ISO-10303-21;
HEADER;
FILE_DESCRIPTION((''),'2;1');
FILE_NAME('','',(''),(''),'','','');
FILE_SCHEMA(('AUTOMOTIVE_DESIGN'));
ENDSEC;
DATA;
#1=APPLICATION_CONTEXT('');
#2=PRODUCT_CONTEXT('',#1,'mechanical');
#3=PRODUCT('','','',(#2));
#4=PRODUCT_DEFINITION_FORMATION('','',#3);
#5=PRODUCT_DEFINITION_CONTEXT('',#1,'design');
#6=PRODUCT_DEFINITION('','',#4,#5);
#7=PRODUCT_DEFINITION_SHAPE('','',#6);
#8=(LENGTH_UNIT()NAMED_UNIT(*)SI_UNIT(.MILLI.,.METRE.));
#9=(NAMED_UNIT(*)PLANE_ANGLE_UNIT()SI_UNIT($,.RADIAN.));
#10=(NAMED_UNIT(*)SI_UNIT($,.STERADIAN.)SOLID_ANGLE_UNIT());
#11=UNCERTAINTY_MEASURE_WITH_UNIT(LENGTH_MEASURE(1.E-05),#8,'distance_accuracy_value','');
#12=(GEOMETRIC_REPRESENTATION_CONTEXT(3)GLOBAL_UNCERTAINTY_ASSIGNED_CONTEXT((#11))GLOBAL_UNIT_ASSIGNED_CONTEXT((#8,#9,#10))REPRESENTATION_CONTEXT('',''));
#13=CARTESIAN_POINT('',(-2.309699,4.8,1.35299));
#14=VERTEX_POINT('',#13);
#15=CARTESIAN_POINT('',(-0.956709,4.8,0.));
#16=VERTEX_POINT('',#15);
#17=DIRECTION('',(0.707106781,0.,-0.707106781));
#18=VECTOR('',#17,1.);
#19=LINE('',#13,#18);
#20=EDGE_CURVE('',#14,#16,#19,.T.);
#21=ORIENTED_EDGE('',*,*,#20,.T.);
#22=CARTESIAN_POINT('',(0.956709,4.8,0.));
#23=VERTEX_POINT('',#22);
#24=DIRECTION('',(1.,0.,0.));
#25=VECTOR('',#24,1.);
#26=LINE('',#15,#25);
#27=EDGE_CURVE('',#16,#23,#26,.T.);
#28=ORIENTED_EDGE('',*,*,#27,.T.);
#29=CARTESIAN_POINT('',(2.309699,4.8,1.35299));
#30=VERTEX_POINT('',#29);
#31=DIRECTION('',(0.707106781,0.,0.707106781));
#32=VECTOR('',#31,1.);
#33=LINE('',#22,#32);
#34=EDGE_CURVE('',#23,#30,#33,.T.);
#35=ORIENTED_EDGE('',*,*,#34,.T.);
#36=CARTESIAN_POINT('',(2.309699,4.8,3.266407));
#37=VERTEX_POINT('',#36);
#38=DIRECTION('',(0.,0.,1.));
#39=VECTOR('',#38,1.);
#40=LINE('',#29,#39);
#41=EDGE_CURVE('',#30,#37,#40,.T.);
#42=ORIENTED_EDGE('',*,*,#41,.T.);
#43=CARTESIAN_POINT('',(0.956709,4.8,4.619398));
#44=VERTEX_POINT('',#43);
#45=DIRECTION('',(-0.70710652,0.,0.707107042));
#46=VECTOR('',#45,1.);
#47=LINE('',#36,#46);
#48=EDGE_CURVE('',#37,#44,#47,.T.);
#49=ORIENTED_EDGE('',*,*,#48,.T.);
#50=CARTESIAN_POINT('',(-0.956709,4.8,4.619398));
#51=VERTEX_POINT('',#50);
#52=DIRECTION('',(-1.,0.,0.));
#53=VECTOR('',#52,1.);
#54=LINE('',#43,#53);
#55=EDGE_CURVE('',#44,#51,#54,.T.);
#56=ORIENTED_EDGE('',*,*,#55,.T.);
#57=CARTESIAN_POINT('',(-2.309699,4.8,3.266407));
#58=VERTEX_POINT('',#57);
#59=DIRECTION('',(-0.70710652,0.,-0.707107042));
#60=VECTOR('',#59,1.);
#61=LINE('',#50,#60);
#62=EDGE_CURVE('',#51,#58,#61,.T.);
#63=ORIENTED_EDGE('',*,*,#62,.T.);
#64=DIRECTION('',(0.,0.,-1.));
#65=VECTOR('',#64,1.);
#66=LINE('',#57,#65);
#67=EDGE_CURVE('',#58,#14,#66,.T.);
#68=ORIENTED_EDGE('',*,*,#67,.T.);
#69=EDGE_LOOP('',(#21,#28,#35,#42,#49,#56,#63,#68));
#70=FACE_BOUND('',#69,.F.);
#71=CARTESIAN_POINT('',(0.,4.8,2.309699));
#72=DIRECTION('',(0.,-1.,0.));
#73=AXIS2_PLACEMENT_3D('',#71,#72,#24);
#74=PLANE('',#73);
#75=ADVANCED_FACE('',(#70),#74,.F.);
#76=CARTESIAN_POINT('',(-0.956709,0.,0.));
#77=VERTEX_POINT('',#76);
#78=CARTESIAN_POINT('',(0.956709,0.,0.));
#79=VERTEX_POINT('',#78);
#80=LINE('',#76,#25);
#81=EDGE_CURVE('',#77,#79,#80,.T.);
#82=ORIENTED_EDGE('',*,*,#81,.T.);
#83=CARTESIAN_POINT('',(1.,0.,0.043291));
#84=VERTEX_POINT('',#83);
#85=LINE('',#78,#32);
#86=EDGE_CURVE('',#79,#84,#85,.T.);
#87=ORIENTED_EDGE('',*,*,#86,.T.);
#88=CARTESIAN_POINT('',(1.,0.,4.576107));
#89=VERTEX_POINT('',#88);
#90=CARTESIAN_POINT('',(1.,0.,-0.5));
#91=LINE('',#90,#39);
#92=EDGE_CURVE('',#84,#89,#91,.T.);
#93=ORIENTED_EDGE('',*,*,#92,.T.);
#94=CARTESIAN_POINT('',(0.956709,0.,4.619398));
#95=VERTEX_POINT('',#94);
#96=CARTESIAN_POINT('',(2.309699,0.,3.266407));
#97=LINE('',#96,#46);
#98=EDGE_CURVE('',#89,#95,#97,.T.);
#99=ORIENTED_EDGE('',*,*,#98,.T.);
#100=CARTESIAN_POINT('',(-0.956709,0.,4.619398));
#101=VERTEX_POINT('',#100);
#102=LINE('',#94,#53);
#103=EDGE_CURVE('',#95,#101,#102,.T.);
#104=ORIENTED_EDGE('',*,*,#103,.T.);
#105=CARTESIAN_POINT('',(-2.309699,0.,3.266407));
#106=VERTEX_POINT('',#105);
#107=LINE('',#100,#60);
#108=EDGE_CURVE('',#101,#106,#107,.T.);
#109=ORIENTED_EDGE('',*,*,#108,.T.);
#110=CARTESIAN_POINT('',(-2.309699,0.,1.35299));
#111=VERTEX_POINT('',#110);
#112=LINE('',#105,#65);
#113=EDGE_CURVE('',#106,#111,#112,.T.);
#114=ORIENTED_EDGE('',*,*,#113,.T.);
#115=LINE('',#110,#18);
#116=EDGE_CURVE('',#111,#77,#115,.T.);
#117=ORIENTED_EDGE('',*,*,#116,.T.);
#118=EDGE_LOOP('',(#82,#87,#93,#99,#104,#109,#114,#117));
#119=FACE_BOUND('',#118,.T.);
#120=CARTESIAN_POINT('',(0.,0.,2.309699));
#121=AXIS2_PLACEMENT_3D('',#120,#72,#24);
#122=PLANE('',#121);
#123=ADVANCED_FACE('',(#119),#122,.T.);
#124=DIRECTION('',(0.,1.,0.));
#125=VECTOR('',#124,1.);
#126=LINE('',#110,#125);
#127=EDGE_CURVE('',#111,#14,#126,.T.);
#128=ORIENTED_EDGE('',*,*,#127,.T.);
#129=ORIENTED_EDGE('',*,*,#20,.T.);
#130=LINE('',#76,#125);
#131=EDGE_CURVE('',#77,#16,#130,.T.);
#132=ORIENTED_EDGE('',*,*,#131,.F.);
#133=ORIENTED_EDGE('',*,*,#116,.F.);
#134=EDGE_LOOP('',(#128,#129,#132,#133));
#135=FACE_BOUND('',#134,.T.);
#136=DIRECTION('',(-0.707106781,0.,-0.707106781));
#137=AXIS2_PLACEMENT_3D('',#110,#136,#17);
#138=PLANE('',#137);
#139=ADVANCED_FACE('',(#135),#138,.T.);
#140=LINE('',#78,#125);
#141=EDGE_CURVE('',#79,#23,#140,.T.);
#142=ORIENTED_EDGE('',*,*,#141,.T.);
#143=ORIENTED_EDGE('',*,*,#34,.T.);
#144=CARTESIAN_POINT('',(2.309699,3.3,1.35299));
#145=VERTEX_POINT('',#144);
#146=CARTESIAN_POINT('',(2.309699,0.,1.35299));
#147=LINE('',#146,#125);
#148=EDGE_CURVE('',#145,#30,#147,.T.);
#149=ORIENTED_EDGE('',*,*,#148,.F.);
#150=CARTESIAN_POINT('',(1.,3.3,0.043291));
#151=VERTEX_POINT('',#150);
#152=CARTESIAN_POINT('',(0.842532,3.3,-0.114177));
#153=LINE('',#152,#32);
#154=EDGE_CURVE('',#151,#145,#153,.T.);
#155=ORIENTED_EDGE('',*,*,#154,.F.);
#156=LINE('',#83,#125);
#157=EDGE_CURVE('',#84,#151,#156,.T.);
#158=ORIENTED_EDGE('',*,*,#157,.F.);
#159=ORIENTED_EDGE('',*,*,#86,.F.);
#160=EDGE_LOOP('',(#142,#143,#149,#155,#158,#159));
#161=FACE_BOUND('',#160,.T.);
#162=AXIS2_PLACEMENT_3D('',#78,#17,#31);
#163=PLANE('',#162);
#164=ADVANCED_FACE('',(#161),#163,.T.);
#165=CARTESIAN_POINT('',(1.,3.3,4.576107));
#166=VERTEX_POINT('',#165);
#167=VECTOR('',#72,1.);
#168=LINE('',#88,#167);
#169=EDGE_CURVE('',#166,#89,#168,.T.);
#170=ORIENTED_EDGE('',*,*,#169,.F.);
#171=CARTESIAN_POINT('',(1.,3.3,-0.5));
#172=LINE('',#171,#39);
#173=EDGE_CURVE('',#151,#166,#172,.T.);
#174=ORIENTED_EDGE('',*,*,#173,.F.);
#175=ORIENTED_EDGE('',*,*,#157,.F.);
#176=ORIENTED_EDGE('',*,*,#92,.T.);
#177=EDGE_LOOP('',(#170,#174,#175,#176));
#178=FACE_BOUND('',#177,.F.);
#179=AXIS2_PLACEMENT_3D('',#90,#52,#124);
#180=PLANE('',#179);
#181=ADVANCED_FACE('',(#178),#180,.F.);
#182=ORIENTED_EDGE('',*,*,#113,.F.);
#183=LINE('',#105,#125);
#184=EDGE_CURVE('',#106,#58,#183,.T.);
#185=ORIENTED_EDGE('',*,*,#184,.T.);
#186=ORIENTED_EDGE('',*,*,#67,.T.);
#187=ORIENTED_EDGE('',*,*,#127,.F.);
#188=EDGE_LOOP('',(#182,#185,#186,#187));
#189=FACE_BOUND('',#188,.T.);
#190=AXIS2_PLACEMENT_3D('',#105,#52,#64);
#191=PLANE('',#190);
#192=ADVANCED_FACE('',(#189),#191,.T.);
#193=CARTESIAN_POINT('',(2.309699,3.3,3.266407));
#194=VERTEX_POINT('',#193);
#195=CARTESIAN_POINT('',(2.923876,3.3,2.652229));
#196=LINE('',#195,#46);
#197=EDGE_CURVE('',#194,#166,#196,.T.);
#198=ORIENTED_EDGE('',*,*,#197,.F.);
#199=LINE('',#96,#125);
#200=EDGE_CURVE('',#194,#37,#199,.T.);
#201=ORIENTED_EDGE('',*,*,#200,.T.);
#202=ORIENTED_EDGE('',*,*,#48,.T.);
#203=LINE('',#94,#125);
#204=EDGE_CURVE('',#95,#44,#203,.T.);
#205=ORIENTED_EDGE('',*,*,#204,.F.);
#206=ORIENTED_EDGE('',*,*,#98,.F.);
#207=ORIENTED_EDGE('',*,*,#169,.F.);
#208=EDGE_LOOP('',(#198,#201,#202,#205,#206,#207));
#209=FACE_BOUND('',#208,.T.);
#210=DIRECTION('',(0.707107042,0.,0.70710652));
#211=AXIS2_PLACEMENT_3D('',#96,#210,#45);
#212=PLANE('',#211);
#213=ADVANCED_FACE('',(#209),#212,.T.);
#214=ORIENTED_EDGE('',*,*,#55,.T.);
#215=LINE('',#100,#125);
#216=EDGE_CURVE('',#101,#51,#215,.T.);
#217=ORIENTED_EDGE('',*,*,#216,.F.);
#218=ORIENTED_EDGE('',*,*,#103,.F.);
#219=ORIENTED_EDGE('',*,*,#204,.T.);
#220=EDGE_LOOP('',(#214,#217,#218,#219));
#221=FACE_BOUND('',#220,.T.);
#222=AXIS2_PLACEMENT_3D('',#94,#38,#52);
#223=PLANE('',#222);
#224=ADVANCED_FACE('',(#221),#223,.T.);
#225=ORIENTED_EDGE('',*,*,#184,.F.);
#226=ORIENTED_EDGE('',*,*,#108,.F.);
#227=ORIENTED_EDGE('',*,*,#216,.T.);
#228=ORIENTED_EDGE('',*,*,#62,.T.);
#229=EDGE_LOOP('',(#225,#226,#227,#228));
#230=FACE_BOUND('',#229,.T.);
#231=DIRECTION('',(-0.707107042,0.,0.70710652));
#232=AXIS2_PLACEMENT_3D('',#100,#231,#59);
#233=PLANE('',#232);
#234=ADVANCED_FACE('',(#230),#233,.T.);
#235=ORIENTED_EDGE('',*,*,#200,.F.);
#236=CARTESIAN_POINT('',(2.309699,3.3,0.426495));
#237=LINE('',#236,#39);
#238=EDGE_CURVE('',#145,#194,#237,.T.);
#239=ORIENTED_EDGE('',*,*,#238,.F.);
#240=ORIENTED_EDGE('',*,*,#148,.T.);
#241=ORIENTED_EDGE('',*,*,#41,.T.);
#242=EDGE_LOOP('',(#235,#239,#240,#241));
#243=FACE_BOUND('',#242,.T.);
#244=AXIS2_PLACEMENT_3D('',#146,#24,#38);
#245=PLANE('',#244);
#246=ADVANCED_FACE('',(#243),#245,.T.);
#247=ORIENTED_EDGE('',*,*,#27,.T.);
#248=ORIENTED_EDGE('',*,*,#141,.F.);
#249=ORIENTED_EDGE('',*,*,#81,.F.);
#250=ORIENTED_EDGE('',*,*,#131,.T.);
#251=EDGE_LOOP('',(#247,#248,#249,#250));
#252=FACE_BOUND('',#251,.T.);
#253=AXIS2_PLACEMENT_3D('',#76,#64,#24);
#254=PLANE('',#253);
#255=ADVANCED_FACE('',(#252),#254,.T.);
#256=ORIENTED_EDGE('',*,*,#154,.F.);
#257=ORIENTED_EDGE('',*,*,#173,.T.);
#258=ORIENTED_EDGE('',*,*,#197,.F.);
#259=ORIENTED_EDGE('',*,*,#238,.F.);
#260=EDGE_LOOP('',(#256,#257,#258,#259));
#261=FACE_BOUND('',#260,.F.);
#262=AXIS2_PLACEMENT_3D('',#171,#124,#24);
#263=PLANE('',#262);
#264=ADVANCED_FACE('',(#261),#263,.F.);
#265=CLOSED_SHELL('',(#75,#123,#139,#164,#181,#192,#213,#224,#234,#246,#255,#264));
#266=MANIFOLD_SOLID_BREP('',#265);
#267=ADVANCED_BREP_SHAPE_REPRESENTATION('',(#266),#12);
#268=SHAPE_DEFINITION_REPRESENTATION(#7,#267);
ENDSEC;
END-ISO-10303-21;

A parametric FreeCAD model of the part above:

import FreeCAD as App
import Part
import Sketcher
from FreeCAD import Vector


def add_polygon(sketch, points):
    """Adds a closed chain of lines whose ends are joined by coincident constraints."""
    first, n = sketch.GeometryCount, len(points)
    for a, b in zip(points, points[1:] + points[:1]):
        sketch.addGeometry(Part.LineSegment(App.Vector(*a, 0), App.Vector(*b, 0)), False)
    for i in range(n):
        sketch.addConstraint(Sketcher.Constraint("Coincident", first + i, 2, first + (i + 1) % n, 1))

doc = App.newDocument("Part")
params = doc.addObject("Spreadsheet::Sheet", "Params")
for row, (alias, value) in enumerate([
    ("sketch1_width", "2 mm"),
    ("sketch1_height", "3.3 mm"),
    ("pad1_length", "6 mm"),
    ("pad2_length", "4.8 mm"),
], start=1):
    params.set(f"A{row}", alias)
    params.set(f"B{row}", "=" + value)
    params.setAlias(f"B{row}", alias)

body = doc.addObject("PartDesign::Body", "Body")

# Sketch on XY plane
sketch1 = body.newObject("Sketcher::SketchObject", "Sketch")
sketch1.AttachmentSupport = (doc.getObject("XY_Plane"), [""])
sketch1.MapMode = "FlatFace"
sketch1.AttachmentOffset = App.Placement(Vector(0, 0, -0.5), App.Rotation())
add_polygon(sketch1, [(1, 3.3), (1, 0), (3, 0), (3, 3.3)])  # lines 0-3
sketch1.addConstraint(Sketcher.Constraint("Vertical", 0))
sketch1.addConstraint(Sketcher.Constraint("Horizontal", 1))
sketch1.addConstraint(Sketcher.Constraint("Vertical", 2))
sketch1.addConstraint(Sketcher.Constraint("Horizontal", 3))
sketch1.addConstraint(Sketcher.Constraint("PointOnObject", 0, 2, -1))
sketch1.addConstraint(Sketcher.Constraint("DistanceX", 1, 1, 1, 2, 2.0))
sketch1.addConstraint(Sketcher.Constraint("DistanceY", 0, 2, 0, 1, 3.3))
sketch1.addConstraint(Sketcher.Constraint("DistanceX", -1, 1, 0, 2, 1.0))
sketch1.setExpression("Constraints[9]", "Params.sketch1_width")
sketch1.setExpression("Constraints[10]", "Params.sketch1_height")
pad1 = body.newObject("PartDesign::Pad", "Pad")
pad1.Profile = sketch1
pad1.setExpression("Length", "Params.pad1_length")
body2 = doc.addObject("PartDesign::Body", "Body001")

# Sketch on XZ plane
sketch2 = body2.newObject("Sketcher::SketchObject", "Sketch001")
sketch2.AttachmentSupport = (doc.getObject("XZ_Plane001"), [""])
sketch2.MapMode = "FlatFace"
add_polygon(sketch2, [(2.3, 1.4), (2.3, 3.3), (1, 4.6), (-1, 4.6), (-2.3, 3.3), (-2.3, 1.4), (-1, 0), (1, 0)])  # lines 0-7
sketch2.addConstraint(Sketcher.Constraint("Vertical", 0))
sketch2.addConstraint(Sketcher.Constraint("Horizontal", 2))
sketch2.addConstraint(Sketcher.Constraint("Vertical", 4))
sketch2.addConstraint(Sketcher.Constraint("Horizontal", 6))
sketch2.addConstraint(Sketcher.Constraint("Symmetric", 5, 2, 6, 2, -1, 1))
sketch2.addConstraint(Sketcher.Constraint("Symmetric", 0, 2, 3, 2, -2))
sketch2.addConstraint(Sketcher.Constraint("Perpendicular", 1, 3))
sketch2.addConstraint(Sketcher.Constraint("Perpendicular", 3, 5))
sketch2.addConstraint(Sketcher.Constraint("Perpendicular", 5, 7))
sketch2.addConstraint(Sketcher.Constraint("Horizontal", 4, 2, 7, 2))
sketch2.addConstraint(Sketcher.Constraint("Vertical", 2, 2, 5, 2))
sketch2.addConstraint(Sketcher.Constraint("Equal", 6, 0))
sketch2.addConstraint(Sketcher.Constraint("DistanceX", 2, 2, 2, 1, 1.913418))
sketch2.addConstraint(Sketcher.Constraint("DistanceX", -1, 1, 0, 2, 2.309699))
pad2 = body2.newObject("PartDesign::Pad", "Pad001")
pad2.Profile = sketch2
pad2.setExpression("Length", "Params.pad2_length")
pad2.Reversed = True
doc.recompute()

boolean = body2.newObject("PartDesign::Boolean", "Boolean")
boolean.Type = "Cut"
boolean.addObjects([body])

doc.recompute()
